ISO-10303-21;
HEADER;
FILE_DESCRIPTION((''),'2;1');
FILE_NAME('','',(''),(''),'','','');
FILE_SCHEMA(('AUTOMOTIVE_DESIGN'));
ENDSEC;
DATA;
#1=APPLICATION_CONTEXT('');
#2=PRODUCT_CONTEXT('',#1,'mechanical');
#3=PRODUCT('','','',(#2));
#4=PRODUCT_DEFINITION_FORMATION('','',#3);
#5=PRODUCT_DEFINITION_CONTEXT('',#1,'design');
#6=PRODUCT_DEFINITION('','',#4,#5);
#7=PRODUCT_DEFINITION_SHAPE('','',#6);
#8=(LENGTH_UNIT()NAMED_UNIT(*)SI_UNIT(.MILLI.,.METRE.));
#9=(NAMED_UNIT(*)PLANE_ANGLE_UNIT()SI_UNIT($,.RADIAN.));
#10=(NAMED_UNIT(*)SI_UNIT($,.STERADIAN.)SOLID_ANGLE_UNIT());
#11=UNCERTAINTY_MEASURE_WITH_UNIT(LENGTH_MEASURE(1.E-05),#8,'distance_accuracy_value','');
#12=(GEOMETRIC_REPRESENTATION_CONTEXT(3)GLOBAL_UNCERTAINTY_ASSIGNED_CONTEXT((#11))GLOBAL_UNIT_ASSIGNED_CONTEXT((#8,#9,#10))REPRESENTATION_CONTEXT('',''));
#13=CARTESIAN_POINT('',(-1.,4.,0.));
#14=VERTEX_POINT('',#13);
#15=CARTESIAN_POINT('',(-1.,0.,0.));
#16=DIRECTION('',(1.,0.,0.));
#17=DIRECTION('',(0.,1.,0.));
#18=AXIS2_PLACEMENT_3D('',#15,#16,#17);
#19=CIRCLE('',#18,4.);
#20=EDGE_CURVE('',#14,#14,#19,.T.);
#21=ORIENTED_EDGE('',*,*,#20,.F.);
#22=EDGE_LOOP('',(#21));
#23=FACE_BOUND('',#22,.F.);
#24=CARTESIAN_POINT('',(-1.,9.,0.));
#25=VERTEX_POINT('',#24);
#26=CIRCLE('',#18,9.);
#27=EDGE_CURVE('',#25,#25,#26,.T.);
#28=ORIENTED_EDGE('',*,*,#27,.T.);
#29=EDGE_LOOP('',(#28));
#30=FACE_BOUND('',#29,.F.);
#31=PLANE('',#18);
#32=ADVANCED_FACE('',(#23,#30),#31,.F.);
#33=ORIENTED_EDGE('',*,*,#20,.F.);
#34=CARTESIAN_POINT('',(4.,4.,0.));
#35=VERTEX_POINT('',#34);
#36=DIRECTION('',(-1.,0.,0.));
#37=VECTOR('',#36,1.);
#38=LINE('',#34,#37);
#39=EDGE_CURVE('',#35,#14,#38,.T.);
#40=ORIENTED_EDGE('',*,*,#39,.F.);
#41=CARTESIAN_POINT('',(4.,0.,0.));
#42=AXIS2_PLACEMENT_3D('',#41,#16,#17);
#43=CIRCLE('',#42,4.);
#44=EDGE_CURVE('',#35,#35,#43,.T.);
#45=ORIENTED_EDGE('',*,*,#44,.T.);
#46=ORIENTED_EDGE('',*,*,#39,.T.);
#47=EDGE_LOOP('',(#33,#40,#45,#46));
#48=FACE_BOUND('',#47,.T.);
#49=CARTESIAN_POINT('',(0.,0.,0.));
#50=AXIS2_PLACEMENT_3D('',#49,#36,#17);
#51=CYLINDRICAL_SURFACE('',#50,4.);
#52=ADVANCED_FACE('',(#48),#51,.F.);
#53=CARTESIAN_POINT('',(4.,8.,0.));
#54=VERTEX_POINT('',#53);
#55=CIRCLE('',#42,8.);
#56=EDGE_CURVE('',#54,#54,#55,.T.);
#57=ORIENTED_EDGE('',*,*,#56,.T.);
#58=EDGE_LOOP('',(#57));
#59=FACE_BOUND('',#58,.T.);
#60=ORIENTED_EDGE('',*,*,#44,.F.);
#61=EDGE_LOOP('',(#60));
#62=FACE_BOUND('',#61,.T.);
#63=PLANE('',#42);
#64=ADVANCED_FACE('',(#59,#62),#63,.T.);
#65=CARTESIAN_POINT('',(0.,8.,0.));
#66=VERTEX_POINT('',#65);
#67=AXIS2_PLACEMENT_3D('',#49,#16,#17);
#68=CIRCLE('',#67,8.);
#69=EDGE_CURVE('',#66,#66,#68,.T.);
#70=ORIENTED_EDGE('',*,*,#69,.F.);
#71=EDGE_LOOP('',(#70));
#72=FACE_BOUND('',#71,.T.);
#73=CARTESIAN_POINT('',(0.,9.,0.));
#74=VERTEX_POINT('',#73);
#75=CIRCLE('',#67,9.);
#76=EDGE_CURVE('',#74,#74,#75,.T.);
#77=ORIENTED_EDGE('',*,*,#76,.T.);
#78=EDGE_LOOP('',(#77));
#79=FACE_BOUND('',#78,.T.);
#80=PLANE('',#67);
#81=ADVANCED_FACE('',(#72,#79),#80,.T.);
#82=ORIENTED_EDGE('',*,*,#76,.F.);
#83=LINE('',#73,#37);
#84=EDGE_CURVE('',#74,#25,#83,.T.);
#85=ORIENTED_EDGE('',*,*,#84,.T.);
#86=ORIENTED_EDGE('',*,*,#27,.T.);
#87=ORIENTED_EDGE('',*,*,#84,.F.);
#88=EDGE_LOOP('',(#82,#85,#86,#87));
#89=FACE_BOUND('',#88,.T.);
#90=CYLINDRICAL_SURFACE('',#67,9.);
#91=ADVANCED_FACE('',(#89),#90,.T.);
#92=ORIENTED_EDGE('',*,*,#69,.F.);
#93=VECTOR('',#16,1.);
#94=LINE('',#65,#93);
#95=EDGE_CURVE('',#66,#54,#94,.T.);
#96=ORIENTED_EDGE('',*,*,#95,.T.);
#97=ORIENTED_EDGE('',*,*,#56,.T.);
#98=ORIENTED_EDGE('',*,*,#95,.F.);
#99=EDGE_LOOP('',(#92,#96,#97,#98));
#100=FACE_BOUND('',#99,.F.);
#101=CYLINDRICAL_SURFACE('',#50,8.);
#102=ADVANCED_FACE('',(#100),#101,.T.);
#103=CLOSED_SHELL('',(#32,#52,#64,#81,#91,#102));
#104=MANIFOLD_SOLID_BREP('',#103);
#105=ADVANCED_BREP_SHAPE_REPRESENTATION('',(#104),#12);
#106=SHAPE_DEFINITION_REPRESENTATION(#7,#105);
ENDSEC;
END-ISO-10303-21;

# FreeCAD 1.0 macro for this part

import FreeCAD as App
import Part
import Sketcher
from FreeCAD import Vector
Q = App.Units.Quantity

doc = App.newDocument("Part")
params = doc.addObject("Spreadsheet::Sheet", "Params")
for row, (alias, value) in enumerate([
    ("sketch1_diameter", "16 mm"),
    ("sketch1_diameter2", "8 mm"),
    ("pad1_length", "4 mm"),
    ("sketch2_diameter", "18 mm"),
    ("sketch2_diameter2", "8 mm"),
    ("pad2_length", "1 mm"),
], start=1):
    params.set(f"A{row}", alias)
    params.set(f"B{row}", "=" + value)
    params.setAlias(f"B{row}", alias)

body = doc.addObject("PartDesign::Body", "Body")

sketch1 = body.newObject("Sketcher::SketchObject", "Sketch")
sketch1.AttachmentSupport = (doc.getObject("YZ_Plane"), [""])
sketch1.MapMode = "FlatFace"
sketch1.addGeometry([
    Part.Circle(Vector(0, 0, 0), Vector(0, 0, 1), 8),
    Part.Circle(Vector(0, 0, 0), Vector(0, 0, 1), 4),
], False)
sketch1.addConstraint([
    Sketcher.Constraint("Coincident", 0, 3, -1, 1),
    Sketcher.Constraint("Coincident", 1, 3, -1, 1),
    Sketcher.Constraint("Diameter", 0, Q("16 mm")),
    Sketcher.Constraint("Diameter", 1, Q("8 mm")),
])
sketch1.setExpression("Constraints[2]", "Params.sketch1_diameter")
sketch1.setExpression("Constraints[3]", "Params.sketch1_diameter2")
pad1 = body.newObject("PartDesign::Pad", "Pad")
pad1.Profile = sketch1
pad1.setExpression("Length", "Params.pad1_length")

sketch2 = body.newObject("Sketcher::SketchObject", "Sketch001")
sketch2.AttachmentSupport = (doc.getObject("YZ_Plane"), [""])
sketch2.MapMode = "FlatFace"
sketch2.addGeometry([
    Part.Circle(Vector(0, 0, 0), Vector(0, 0, 1), 9),
    Part.Circle(Vector(0, 0, 0), Vector(0, 0, 1), 4),
], False)
sketch2.addConstraint([
    Sketcher.Constraint("Coincident", 0, 3, -1, 1),
    Sketcher.Constraint("Coincident", 1, 3, -1, 1),
    Sketcher.Constraint("Diameter", 0, Q("18 mm")),
    Sketcher.Constraint("Diameter", 1, Q("8 mm")),
])
sketch2.setExpression("Constraints[2]", "Params.sketch2_diameter")
sketch2.setExpression("Constraints[3]", "Params.sketch2_diameter2")
pad2 = body.newObject("PartDesign::Pad", "Pad001")
pad2.Profile = sketch2
pad2.setExpression("Length", "Params.pad2_length")
pad2.Reversed = True

doc.recompute()
